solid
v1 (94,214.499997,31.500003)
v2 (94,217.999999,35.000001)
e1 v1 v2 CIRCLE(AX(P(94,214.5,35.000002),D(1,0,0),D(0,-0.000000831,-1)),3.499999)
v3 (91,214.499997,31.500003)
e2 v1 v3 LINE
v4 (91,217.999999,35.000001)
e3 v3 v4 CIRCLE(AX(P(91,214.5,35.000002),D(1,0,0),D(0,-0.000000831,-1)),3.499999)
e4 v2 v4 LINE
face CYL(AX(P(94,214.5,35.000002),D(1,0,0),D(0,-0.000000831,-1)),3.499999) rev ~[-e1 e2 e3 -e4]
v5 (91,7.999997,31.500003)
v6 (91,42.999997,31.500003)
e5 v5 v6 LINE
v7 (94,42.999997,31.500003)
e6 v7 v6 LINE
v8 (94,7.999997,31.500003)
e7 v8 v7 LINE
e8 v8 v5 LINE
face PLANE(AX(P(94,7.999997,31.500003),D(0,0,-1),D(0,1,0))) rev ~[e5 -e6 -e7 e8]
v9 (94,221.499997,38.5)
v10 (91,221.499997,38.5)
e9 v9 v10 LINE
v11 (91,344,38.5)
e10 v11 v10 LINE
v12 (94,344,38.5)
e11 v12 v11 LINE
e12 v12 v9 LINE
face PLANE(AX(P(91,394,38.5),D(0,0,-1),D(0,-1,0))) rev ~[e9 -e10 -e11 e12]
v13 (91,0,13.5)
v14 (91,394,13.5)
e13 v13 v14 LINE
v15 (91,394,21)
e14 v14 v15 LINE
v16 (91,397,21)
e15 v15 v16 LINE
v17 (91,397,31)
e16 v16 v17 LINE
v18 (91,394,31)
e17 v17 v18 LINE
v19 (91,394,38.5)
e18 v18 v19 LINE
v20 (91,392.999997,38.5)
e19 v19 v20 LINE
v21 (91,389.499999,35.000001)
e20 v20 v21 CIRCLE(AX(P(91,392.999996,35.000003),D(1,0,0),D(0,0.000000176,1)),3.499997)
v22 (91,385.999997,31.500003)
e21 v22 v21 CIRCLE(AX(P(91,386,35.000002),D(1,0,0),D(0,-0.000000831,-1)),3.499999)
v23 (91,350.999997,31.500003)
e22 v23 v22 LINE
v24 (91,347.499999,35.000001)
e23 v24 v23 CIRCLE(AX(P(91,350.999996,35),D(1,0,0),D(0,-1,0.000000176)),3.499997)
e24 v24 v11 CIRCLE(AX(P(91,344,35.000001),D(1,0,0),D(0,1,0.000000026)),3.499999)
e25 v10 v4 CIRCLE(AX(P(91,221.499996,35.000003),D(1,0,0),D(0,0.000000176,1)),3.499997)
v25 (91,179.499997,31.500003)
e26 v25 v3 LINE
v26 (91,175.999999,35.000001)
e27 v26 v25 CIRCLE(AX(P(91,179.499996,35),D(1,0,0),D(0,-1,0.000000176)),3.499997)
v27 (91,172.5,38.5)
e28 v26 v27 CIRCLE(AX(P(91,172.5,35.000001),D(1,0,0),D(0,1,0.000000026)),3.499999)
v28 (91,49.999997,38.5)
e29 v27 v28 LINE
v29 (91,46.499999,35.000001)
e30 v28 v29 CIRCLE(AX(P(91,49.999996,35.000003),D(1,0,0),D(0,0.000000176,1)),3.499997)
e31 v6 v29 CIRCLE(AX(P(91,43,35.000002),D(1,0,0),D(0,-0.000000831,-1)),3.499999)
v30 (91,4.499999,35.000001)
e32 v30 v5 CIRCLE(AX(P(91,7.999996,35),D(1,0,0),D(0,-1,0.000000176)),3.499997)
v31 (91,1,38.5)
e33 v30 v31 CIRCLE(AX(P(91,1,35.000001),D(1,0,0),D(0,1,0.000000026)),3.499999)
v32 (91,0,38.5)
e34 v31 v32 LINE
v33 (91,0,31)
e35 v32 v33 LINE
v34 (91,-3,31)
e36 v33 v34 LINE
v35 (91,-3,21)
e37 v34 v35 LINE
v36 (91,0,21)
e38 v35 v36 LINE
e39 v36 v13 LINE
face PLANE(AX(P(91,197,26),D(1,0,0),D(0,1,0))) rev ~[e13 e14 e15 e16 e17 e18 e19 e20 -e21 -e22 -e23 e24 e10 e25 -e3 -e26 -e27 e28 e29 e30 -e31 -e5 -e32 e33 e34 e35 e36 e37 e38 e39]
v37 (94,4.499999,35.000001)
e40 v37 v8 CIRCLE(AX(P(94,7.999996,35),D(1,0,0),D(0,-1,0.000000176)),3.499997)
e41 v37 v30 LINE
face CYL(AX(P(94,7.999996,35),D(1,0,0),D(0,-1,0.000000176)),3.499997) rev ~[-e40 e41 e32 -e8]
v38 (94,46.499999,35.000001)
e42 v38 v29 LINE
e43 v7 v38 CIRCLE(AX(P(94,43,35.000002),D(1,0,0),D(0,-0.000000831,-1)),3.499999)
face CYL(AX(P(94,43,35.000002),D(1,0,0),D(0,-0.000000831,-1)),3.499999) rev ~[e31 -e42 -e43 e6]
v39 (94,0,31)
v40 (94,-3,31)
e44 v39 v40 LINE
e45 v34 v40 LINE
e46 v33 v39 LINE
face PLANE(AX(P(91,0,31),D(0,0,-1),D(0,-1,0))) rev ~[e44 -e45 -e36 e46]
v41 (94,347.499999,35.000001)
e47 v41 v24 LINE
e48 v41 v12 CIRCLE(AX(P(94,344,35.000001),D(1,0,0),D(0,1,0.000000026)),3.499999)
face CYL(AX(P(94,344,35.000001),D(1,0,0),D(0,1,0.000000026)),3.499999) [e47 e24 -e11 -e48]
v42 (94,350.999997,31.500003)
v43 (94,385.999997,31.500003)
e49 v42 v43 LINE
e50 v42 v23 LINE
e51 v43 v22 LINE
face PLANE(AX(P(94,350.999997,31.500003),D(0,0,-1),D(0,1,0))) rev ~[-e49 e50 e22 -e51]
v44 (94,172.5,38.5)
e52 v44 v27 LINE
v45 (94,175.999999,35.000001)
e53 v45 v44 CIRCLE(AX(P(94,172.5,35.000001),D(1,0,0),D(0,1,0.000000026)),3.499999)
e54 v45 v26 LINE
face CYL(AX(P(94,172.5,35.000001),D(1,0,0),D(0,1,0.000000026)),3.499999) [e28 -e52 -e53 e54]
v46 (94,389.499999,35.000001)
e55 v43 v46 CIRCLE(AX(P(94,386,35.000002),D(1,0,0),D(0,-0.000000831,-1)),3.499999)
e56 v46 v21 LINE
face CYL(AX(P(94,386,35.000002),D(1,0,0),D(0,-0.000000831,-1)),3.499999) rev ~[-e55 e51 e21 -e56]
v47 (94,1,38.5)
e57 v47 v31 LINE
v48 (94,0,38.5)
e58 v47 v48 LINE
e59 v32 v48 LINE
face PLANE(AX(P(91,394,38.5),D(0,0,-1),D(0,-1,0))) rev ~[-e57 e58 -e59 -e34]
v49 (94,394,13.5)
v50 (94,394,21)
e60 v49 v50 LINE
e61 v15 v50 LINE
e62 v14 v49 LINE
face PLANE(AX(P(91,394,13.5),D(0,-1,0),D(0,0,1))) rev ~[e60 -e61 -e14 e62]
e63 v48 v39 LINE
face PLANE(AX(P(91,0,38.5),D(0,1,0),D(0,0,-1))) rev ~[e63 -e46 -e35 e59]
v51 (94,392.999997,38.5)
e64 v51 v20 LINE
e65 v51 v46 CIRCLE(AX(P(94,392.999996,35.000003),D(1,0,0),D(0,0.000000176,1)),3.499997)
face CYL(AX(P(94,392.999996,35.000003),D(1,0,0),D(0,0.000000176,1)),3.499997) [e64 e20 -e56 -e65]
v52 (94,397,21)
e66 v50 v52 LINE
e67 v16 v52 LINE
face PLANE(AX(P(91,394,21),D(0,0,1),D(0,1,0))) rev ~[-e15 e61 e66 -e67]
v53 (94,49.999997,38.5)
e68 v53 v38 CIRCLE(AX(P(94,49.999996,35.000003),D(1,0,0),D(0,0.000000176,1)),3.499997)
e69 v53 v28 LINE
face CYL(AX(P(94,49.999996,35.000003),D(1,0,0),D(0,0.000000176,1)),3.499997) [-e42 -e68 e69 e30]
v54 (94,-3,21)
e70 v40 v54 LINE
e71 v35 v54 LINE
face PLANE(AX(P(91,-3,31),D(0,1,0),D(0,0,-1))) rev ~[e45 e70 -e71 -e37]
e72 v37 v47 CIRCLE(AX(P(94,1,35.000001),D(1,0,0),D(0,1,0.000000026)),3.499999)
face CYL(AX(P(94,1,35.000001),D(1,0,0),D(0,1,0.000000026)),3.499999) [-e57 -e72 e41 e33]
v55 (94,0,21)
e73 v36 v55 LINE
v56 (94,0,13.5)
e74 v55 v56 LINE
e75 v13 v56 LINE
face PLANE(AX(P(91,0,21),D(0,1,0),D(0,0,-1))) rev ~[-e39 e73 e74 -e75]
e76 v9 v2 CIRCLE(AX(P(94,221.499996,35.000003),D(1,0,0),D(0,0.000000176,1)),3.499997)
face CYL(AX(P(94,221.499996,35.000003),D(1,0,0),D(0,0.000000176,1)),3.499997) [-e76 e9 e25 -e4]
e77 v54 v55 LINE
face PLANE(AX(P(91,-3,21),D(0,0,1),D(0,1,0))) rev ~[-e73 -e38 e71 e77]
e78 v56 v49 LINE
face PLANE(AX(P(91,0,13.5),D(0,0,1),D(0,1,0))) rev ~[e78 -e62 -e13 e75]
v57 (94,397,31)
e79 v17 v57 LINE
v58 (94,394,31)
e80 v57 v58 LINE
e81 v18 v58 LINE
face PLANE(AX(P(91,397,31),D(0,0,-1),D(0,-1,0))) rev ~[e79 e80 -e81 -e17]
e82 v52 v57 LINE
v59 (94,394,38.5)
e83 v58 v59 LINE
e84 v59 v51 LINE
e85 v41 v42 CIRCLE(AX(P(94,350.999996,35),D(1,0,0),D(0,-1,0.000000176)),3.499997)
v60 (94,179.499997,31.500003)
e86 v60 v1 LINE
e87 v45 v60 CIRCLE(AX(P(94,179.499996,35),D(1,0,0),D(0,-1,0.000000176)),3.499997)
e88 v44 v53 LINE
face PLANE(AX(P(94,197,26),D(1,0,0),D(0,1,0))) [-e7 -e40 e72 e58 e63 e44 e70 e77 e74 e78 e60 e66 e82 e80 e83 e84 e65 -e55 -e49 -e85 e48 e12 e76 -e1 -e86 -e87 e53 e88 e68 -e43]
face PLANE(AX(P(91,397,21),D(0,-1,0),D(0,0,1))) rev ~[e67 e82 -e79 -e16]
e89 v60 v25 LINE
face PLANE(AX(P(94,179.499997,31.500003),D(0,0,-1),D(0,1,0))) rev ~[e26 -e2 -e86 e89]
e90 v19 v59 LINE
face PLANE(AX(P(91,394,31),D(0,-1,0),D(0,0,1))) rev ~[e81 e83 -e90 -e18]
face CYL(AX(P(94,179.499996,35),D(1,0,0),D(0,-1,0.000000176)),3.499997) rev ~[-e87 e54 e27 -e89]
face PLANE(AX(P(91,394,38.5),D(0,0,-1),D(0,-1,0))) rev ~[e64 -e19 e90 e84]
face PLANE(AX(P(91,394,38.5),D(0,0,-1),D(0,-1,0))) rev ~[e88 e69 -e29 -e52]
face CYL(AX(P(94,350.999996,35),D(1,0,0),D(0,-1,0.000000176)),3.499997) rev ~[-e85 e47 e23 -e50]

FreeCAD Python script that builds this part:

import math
import FreeCAD as App
import Part
import Sketcher

V = App.Vector

doc = App.newDocument("Part")
body = doc.addObject("PartDesign::Body", "Body")

# Sketch on YZ plane
sketch1 = body.newObject("Sketcher::SketchObject", "Sketch")
sketch1.AttachmentSupport = (doc.getObject("YZ_Plane"), [""])
sketch1.MapMode = "FlatFace"
sketch1.addGeometry(Part.LineSegment(V(0, -17.5, 0), V(394, -17.5, 0)), False)
sketch1.addGeometry(Part.LineSegment(V(394, -17.5, 0), V(394, -10, 0)), False)
sketch1.addGeometry(Part.LineSegment(V(394, -10, 0), V(397, -10, 0)), False)
sketch1.addGeometry(Part.LineSegment(V(397, -10, 0), V(397, 0, 0)), False)
sketch1.addGeometry(Part.LineSegment(V(397, 0, 0), V(394, 0, 0)), False)
sketch1.addGeometry(Part.LineSegment(V(394, 0, 0), V(394, 7.5, 0)), False)
sketch1.addGeometry(Part.LineSegment(V(394, 7.5, 0), V(0, 7.5, 0)), False)
sketch1.addGeometry(Part.LineSegment(V(0, 7.5, 0), V(0, 0, 0)), False)
sketch1.addGeometry(Part.LineSegment(V(0, 0, 0), V(-3, 0, 0)), False)
sketch1.addGeometry(Part.LineSegment(V(-3, 0, 0), V(-3, -10, 0)), False)
sketch1.addGeometry(Part.LineSegment(V(-3, -10, 0), V(0, -10, 0)), False)
sketch1.addGeometry(Part.LineSegment(V(0, -10, 0), V(0, -17.5, 0)), False)
sketch1.addConstraint(Sketcher.Constraint("Coincident", 0, 2, 1, 1))
sketch1.addConstraint(Sketcher.Constraint("Coincident", 1, 2, 2, 1))
sketch1.addConstraint(Sketcher.Constraint("Coincident", 2, 2, 3, 1))
sketch1.addConstraint(Sketcher.Constraint("Coincident", 3, 2, 4, 1))
sketch1.addConstraint(Sketcher.Constraint("Coincident", 4, 2, 5, 1))
sketch1.addConstraint(Sketcher.Constraint("Coincident", 5, 2, 6, 1))
sketch1.addConstraint(Sketcher.Constraint("Coincident", 6, 2, 7, 1))
sketch1.addConstraint(Sketcher.Constraint("Coincident", 7, 2, 8, 1))
sketch1.addConstraint(Sketcher.Constraint("Coincident", 8, 2, 9, 1))
sketch1.addConstraint(Sketcher.Constraint("Coincident", 9, 2, 10, 1))
sketch1.addConstraint(Sketcher.Constraint("Coincident", 10, 2, 11, 1))
sketch1.addConstraint(Sketcher.Constraint("Coincident", 11, 2, 0, 1))
sketch1.addConstraint(Sketcher.Constraint("Horizontal", 0))
sketch1.addConstraint(Sketcher.Constraint("Vertical", 1))
sketch1.addConstraint(Sketcher.Constraint("Horizontal", 2))
sketch1.addConstraint(Sketcher.Constraint("Vertical", 3))
sketch1.addConstraint(Sketcher.Constraint("Horizontal", 4))
sketch1.addConstraint(Sketcher.Constraint("Vertical", 5))
sketch1.addConstraint(Sketcher.Constraint("Horizontal", 6))
sketch1.addConstraint(Sketcher.Constraint("Vertical", 7))
sketch1.addConstraint(Sketcher.Constraint("Horizontal", 8))
sketch1.addConstraint(Sketcher.Constraint("Vertical", 9))
sketch1.addConstraint(Sketcher.Constraint("Horizontal", 10))
sketch1.addConstraint(Sketcher.Constraint("Vertical", 11))
sketch1.addConstraint(Sketcher.Constraint("Coincident", 7, 2, -1, 1))
sketch1.addConstraint(Sketcher.Constraint("PointOnObject", 3, 2, -1))
sketch1.addConstraint(Sketcher.Constraint("PointOnObject", 10, 2, -2))
sketch1.addConstraint(Sketcher.Constraint("Horizontal", 2, 2, 9, 2))
sketch1.addConstraint(Sketcher.Constraint("Vertical", 1, 2, 4, 2))
sketch1.addConstraint(Sketcher.Constraint("Equal", 4, 8))
sketch1.addConstraint(Sketcher.Constraint("Equal", 1, 5))
sketch1.addConstraint(Sketcher.Constraint("DistanceX", 0, 1, 0, 2, 394.0))
sketch1.addConstraint(Sketcher.Constraint("DistanceX", 2, 1, 2, 2, 3.0))
sketch1.addConstraint(Sketcher.Constraint("DistanceY", 3, 1, 3, 2, 10.0))
sketch1.addConstraint(Sketcher.Constraint("DistanceY", 1, 1, 1, 2, 7.5))
pad1 = body.newObject("PartDesign::Pad", "Pad")
pad1.Profile = sketch1
pad1.Length = 3

# Sketch on YZ plane
sketch2 = body.newObject("Sketcher::SketchObject", "Sketch001")
sketch2.AttachmentSupport = (doc.getObject("YZ_Plane"), [""])
sketch2.MapMode = "FlatFace"
sketch2.AttachmentOffset = App.Placement(V(0, 0, 3), App.Rotation())
sketch2.addGeometry(Part.ArcOfCircle(Part.Circle(V(8, 4, 0), V(0, 0, 1), 3.5), math.radians(180), math.radians(270)), False)
sketch2.addGeometry(Part.LineSegment(V(8, 0.5, 0), V(43, 0.5, 0)), False)
sketch2.addGeometry(Part.ArcOfCircle(Part.Circle(V(43, 4, 0), V(0, 0, 1), 3.5), math.radians(-90), math.radians(0)), False)
sketch2.addGeometry(Part.ArcOfCircle(Part.Circle(V(50, 4, 0), V(0, 0, 1), 3.5), math.radians(90), math.radians(180)), False)
sketch2.addGeometry(Part.LineSegment(V(50, 7.5, 0), V(1, 7.5, 0)), False)
sketch2.addGeometry(Part.ArcOfCircle(Part.Circle(V(1, 4, 0), V(0, 0, 1), 3.5), math.radians(0), math.radians(90)), False)
sketch2.addConstraint(Sketcher.Constraint("Tangent", 0, 2, 1, 1))
sketch2.addConstraint(Sketcher.Constraint("Tangent", 1, 2, 2, 1))
sketch2.addConstraint(Sketcher.Constraint("Tangent", 2, 2, 3, 2))
sketch2.addConstraint(Sketcher.Constraint("Tangent", 3, 1, 4, 1))
sketch2.addConstraint(Sketcher.Constraint("Tangent", 4, 2, 5, 2))
sketch2.addConstraint(Sketcher.Constraint("Tangent", 5, 1, 0, 1))
sketch2.addConstraint(Sketcher.Constraint("Horizontal", 1))
sketch2.addConstraint(Sketcher.Constraint("Horizontal", 4))
sketch2.addConstraint(Sketcher.Constraint("Equal", 0, 2))
sketch2.addConstraint(Sketcher.Constraint("Equal", 2, 3))
sketch2.addConstraint(Sketcher.Constraint("Equal", 3, 5))
sketch2.addConstraint(Sketcher.Constraint("Horizontal", 2, 3, 3, 3))
sketch2.addConstraint(Sketcher.Constraint("Radius", 2, 3.499999))
sketch2.addConstraint(Sketcher.Constraint("DistanceX", 1, 1, 1, 2, 35.0))
sketch2.addConstraint(Sketcher.Constraint("DistanceY", -1, 1, 0, 3, 4.0))
sketch2.addConstraint(Sketcher.Constraint("DistanceX", -1, 1, 2, 3, 43.0))
pocket1 = body.newObject("PartDesign::Pocket", "Pocket")
pocket1.Profile = sketch2
pocket1.Length = 3
doc.recompute()

linearpattern = body.newObject("PartDesign::LinearPattern", "LinearPattern")
linearpattern.Originals = [pocket1]
linearpattern.Direction = (doc.getObject("Y_Axis"), [""])
linearpattern.Mode = "offset"
linearpattern.Offset = 171.5
linearpattern.Occurrences = 3
body.Tip = linearpattern
body2 = doc.addObject("PartDesign::Body", "Body001")
doc.recompute()

body.Placement = App.Placement(V(91, 0, 31), App.Rotation(V(0, 0, 1), 0))
boolean = body2.newObject("PartDesign::Boolean", "Boolean")
boolean.Type = "Fuse"
boolean.addObjects([body])

doc.recompute()
